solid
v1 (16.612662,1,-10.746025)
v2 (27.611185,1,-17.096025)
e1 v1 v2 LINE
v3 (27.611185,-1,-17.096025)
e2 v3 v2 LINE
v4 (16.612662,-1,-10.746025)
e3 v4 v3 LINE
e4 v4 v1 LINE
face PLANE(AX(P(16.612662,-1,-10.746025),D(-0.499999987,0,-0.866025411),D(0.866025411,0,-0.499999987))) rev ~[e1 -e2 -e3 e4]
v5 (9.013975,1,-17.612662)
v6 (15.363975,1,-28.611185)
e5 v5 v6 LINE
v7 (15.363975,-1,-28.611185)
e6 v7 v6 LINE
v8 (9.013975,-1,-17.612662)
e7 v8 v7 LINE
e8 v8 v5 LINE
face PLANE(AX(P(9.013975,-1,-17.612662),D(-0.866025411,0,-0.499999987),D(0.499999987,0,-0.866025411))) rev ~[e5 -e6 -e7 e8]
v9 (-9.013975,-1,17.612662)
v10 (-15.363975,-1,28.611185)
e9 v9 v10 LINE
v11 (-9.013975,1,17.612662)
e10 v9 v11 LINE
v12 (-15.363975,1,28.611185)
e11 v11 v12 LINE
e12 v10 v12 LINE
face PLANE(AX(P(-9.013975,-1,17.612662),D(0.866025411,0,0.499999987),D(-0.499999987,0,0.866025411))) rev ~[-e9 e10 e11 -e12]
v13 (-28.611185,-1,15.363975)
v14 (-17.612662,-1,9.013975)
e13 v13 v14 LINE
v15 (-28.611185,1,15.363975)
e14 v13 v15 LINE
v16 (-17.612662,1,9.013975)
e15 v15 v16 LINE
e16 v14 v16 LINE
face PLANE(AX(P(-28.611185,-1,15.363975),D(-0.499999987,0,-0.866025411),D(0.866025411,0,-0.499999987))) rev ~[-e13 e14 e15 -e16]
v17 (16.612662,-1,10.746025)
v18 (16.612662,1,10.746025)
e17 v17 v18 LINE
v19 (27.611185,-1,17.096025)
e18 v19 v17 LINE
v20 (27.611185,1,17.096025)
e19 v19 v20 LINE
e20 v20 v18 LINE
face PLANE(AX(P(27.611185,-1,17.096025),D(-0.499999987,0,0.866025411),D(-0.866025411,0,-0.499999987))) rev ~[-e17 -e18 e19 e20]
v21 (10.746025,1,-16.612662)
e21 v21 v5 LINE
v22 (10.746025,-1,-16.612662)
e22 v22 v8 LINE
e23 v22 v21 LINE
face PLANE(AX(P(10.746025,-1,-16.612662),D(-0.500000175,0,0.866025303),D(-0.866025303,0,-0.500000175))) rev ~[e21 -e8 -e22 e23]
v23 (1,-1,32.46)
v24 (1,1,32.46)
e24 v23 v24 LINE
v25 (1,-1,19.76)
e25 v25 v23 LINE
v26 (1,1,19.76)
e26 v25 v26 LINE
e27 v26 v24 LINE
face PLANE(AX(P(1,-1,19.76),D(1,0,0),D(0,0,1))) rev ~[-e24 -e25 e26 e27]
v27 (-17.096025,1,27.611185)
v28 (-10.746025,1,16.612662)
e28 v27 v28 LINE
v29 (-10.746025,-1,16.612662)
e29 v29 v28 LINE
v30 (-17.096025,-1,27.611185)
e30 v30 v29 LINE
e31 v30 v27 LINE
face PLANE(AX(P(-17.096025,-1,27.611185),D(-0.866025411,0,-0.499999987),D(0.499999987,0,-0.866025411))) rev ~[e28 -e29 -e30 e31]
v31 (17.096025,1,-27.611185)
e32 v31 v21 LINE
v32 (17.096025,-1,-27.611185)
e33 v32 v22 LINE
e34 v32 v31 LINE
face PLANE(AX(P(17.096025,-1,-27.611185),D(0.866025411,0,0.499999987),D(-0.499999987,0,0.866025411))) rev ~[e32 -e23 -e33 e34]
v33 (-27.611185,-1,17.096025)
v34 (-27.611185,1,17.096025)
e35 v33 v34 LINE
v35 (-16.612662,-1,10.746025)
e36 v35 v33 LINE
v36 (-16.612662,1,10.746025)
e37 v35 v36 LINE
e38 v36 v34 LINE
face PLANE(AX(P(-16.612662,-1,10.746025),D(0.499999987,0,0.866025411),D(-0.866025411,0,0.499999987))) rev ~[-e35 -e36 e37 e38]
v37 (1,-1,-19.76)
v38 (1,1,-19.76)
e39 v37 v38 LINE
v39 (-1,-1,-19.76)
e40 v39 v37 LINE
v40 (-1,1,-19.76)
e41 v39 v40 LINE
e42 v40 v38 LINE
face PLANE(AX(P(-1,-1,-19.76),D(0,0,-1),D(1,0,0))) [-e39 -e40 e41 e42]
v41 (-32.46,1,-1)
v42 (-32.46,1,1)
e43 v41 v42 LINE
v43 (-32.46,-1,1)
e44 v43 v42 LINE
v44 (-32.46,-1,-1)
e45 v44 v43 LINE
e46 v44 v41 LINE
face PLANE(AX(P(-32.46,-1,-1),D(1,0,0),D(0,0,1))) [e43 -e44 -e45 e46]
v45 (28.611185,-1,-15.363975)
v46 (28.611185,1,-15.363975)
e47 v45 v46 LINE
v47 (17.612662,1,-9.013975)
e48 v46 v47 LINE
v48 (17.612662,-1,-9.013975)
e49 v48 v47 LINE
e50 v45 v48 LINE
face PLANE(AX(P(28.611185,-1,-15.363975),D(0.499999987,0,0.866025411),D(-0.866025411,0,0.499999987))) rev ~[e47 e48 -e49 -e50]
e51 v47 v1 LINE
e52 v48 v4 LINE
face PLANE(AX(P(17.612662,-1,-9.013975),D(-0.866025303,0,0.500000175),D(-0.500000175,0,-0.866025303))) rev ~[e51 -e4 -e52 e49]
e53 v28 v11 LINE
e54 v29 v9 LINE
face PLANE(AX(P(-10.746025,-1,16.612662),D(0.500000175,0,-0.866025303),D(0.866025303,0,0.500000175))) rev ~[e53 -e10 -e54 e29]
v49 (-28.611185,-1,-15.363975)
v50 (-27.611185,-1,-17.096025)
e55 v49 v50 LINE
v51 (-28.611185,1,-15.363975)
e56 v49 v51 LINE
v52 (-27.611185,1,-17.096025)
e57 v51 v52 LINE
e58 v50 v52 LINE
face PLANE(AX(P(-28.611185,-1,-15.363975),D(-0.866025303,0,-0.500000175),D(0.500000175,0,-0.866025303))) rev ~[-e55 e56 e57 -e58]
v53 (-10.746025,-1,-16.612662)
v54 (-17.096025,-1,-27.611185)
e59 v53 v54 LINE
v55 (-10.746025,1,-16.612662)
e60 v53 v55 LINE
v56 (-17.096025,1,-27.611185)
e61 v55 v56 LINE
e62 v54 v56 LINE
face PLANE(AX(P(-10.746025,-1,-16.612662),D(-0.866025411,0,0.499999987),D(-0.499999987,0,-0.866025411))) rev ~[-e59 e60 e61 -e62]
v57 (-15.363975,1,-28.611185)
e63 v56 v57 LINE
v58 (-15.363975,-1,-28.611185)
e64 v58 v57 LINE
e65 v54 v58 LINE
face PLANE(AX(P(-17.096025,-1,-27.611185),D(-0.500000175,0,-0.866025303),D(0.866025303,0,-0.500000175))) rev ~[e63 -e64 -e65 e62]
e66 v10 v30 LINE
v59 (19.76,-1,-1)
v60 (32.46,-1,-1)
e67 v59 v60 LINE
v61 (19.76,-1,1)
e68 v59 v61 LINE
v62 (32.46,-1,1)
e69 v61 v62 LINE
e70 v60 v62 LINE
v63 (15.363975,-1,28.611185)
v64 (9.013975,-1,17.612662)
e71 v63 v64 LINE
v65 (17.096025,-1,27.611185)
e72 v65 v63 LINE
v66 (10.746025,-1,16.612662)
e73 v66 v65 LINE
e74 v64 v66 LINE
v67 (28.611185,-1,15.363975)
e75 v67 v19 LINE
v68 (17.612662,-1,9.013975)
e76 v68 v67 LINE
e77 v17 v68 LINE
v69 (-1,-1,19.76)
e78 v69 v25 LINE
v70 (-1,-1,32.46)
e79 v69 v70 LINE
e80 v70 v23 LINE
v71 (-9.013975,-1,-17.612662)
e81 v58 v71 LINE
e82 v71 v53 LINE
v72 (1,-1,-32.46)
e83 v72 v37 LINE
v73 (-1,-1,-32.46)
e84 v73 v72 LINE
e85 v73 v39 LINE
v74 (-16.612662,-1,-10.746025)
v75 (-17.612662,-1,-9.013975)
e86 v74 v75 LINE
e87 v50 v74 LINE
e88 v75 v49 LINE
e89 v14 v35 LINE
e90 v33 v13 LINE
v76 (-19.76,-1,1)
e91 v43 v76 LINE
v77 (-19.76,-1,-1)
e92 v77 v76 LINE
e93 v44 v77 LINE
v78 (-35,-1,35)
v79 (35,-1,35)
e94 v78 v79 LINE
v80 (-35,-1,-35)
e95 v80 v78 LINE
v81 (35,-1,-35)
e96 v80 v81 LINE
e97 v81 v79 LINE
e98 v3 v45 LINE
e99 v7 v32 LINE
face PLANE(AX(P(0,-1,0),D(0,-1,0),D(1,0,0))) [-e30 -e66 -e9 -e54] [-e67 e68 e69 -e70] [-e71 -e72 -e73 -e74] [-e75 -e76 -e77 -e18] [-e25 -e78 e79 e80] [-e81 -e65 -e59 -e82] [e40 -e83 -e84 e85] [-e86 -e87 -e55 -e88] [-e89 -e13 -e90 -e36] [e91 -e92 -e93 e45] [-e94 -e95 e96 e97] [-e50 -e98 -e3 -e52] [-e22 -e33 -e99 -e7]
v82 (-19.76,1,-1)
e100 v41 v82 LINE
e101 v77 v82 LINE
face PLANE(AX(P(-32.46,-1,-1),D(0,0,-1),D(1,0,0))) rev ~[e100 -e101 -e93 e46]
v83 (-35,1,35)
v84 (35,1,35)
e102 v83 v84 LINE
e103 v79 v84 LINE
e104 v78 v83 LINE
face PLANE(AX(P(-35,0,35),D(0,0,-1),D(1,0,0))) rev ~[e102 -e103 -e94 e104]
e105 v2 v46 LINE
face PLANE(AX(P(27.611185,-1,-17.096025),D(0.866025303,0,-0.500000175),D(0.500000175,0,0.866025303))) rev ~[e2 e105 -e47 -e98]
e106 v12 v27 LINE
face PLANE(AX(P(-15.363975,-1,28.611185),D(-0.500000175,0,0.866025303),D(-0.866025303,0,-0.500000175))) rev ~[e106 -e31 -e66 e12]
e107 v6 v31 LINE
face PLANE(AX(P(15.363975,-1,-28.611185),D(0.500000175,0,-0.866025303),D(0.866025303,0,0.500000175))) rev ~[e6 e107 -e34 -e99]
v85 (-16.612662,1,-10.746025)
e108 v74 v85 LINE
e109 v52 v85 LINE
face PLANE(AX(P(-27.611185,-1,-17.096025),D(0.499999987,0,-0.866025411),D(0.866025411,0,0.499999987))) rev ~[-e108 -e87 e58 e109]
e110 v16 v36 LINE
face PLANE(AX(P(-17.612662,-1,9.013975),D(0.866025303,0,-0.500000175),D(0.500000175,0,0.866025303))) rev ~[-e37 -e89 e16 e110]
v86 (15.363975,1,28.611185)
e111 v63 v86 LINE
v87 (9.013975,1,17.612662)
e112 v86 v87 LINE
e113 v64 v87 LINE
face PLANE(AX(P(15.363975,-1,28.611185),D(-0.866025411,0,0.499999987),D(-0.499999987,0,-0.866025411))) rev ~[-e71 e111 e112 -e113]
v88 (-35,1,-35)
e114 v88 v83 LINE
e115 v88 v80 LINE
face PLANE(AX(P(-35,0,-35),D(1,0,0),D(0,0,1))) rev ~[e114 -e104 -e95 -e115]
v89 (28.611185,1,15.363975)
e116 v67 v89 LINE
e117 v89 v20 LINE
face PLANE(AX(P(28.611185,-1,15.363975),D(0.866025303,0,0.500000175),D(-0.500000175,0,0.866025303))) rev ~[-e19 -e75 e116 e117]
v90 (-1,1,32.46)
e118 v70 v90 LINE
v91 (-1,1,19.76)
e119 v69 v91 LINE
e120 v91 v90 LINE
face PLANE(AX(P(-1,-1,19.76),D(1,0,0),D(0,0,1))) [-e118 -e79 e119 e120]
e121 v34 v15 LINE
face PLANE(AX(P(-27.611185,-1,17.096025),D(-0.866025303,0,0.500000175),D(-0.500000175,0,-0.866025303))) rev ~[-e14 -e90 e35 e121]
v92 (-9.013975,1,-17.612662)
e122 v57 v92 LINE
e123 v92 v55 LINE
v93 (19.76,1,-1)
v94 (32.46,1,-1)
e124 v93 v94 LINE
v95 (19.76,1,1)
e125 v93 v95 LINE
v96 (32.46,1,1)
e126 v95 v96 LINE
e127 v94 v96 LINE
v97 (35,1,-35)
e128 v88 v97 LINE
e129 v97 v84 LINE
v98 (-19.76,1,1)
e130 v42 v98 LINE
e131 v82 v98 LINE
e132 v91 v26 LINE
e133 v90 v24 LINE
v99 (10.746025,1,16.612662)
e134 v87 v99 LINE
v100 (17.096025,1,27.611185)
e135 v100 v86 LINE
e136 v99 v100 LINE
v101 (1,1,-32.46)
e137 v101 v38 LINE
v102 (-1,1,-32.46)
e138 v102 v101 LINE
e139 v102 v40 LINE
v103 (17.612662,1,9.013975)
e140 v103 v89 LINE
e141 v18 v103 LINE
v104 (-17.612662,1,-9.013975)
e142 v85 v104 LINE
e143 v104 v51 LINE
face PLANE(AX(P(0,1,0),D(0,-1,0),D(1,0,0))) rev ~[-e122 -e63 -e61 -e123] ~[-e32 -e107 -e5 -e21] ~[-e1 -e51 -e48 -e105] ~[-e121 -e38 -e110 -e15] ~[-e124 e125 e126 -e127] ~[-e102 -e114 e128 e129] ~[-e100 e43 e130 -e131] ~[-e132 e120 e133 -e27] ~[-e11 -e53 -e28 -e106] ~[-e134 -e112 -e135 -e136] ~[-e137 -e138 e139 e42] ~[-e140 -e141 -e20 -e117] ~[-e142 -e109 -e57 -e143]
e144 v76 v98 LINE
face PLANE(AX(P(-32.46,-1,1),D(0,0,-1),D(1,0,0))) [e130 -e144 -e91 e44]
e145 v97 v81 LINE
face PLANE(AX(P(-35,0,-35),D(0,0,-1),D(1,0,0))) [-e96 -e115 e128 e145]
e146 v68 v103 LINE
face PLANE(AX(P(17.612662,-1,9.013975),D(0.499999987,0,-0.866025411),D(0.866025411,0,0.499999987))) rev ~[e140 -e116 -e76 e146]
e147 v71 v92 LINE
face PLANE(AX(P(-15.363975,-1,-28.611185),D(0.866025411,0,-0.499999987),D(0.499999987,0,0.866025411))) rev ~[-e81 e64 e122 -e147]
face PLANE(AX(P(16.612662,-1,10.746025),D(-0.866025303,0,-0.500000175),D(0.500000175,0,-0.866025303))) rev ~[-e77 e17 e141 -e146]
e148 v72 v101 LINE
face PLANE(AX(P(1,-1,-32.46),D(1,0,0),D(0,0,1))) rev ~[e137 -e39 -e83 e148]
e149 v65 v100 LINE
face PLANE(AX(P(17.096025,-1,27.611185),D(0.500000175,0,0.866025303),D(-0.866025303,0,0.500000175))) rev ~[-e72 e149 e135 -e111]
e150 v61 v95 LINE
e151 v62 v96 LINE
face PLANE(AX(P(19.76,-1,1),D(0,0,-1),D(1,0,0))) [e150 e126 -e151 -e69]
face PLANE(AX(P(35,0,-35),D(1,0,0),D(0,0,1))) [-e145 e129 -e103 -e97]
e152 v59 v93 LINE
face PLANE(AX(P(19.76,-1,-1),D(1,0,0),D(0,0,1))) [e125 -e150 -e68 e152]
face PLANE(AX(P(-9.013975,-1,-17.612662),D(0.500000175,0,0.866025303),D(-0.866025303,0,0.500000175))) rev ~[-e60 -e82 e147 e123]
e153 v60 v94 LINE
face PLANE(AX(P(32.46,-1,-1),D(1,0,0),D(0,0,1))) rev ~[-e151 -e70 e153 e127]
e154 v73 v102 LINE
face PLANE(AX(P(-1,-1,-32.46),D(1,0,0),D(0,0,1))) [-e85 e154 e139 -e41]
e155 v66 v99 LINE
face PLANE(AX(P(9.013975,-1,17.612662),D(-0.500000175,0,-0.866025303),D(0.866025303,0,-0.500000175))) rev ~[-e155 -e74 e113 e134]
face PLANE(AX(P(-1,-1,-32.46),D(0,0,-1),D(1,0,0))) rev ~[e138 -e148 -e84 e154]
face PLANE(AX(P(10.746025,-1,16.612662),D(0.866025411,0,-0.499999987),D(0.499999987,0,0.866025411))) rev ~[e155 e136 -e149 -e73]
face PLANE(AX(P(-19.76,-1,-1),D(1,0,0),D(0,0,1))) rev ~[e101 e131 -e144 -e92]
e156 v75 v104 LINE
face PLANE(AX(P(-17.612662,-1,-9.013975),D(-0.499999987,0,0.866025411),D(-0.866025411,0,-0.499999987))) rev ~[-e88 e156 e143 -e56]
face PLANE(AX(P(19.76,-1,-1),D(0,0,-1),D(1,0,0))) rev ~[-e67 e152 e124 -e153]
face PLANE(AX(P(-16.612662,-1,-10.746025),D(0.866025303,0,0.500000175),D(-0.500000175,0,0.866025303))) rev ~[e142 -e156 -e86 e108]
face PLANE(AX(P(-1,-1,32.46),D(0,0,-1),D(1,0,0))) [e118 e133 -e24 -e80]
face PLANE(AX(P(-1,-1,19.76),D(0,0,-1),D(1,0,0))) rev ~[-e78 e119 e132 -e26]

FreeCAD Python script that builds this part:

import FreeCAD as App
import Part
import Sketcher
from FreeCAD import Vector
Q = App.Units.Quantity

doc = App.newDocument("Part")
body = doc.addObject("PartDesign::Body", "Body")

# Sketch on XZ plane
sketch1 = body.newObject("Sketcher::SketchObject", "Sketch")
sketch1.AttachmentSupport = (doc.getObject("XZ_Plane"), [""])
sketch1.MapMode = "FlatFace"
sketch1.addGeometry([
    Part.LineSegment(Vector(-35, 35, 0), Vector(-35, -35, 0)),
    Part.LineSegment(Vector(-35, -35, 0), Vector(35, -35, 0)),
    Part.LineSegment(Vector(35, -35, 0), Vector(35, 35, 0)),
    Part.LineSegment(Vector(35, 35, 0), Vector(-35, 35, 0)),
], False)
sketch1.addConstraint([
    Sketcher.Constraint("Coincident", 0, 2, 1, 1),
    Sketcher.Constraint("Coincident", 1, 2, 2, 1),
    Sketcher.Constraint("Coincident", 2, 2, 3, 1),
    Sketcher.Constraint("Coincident", 3, 2, 0, 1),
    Sketcher.Constraint("Vertical", 0),
    Sketcher.Constraint("Horizontal", 1),
    Sketcher.Constraint("Vertical", 2),
    Sketcher.Constraint("Horizontal", 3),
    Sketcher.Constraint("Symmetric", 0, 2, 2, 2, -1, 1),
    Sketcher.Constraint("Equal", 3, 0),
    Sketcher.Constraint("DistanceX", 1, 1, 1, 2, 70.0),
])
pad1 = body.newObject("PartDesign::Pad", "Pad")
pad1.Profile = sketch1
pad1.Length = 2
pad1.Midplane = True

# Sketch on XZ plane
sketch2 = body.newObject("Sketcher::SketchObject", "Sketch001")
sketch2.AttachmentSupport = (doc.getObject("XZ_Plane"), [""])
sketch2.MapMode = "FlatFace"
sketch2.AttachmentOffset = App.Placement(Vector(0, 0, 1), App.Rotation())
sketch2.addGeometry([
    Part.LineSegment(Vector(-1, 32.5, 0), Vector(-1, 19.8, 0)),  # 0
    Part.LineSegment(Vector(-1, 19.8, 0), Vector(1, 19.8, 0)),  # 1
    Part.LineSegment(Vector(1, 19.8, 0), Vector(1, 32.5, 0)),  # 2
    Part.LineSegment(Vector(1, 32.5, 0), Vector(-1, 32.5, 0)),  # 3
    Part.LineSegment(Vector(-9, 17.6, 0), Vector(-15.4, 28.6, 0)),  # 4
    Part.LineSegment(Vector(-15.4, 28.6, 0), Vector(-17.1, 27.6, 0)),  # 5
    Part.LineSegment(Vector(-17.1, 27.6, 0), Vector(-10.7, 16.6, 0)),  # 6
    Part.LineSegment(Vector(-10.7, 16.6, 0), Vector(-9, 17.6, 0)),  # 7
    Part.LineSegment(Vector(-16.6, 10.7, 0), Vector(-27.6, 17.1, 0)),  # 8
    Part.LineSegment(Vector(-27.6, 17.1, 0), Vector(-28.6, 15.4, 0)),  # 9
    Part.LineSegment(Vector(-28.6, 15.4, 0), Vector(-17.6, 9, 0)),  # 10
    Part.LineSegment(Vector(-17.6, 9, 0), Vector(-16.6, 10.7, 0)),  # 11
    Part.LineSegment(Vector(-32.5, 1, 0), Vector(-32.5, -1, 0)),  # 12
    Part.LineSegment(Vector(-32.5, -1, 0), Vector(-19.8, -1, 0)),  # 13
    Part.LineSegment(Vector(-19.8, -1, 0), Vector(-19.8, 1, 0)),  # 14
    Part.LineSegment(Vector(-19.8, 1, 0), Vector(-32.5, 1, 0)),  # 15
    Part.LineSegment(Vector(-17.6, -9, 0), Vector(-28.6, -15.4, 0)),  # 16
    Part.LineSegment(Vector(-28.6, -15.4, 0), Vector(-27.6, -17.1, 0)),  # 17
    Part.LineSegment(Vector(-27.6, -17.1, 0), Vector(-16.6, -10.7, 0)),  # 18
    Part.LineSegment(Vector(-16.6, -10.7, 0), Vector(-17.6, -9, 0)),  # 19
    Part.LineSegment(Vector(-10.7, -16.6, 0), Vector(-17.1, -27.6, 0)),  # 20
    Part.LineSegment(Vector(-17.1, -27.6, 0), Vector(-15.4, -28.6, 0)),  # 21
    Part.LineSegment(Vector(-15.4, -28.6, 0), Vector(-9, -17.6, 0)),  # 22
    Part.LineSegment(Vector(-9, -17.6, 0), Vector(-10.7, -16.6, 0)),  # 23
    Part.LineSegment(Vector(-1, -19.8, 0), Vector(-1, -32.5, 0)),  # 24
    Part.LineSegment(Vector(-1, -32.5, 0), Vector(1, -32.5, 0)),  # 25
    Part.LineSegment(Vector(1, -32.5, 0), Vector(1, -19.8, 0)),  # 26
    Part.LineSegment(Vector(1, -19.8, 0), Vector(-1, -19.8, 0)),  # 27
    Part.LineSegment(Vector(9, -17.6, 0), Vector(15.4, -28.6, 0)),  # 28
    Part.LineSegment(Vector(15.4, -28.6, 0), Vector(17.1, -27.6, 0)),  # 29
    Part.LineSegment(Vector(17.1, -27.6, 0), Vector(10.7, -16.6, 0)),  # 30
    Part.LineSegment(Vector(10.7, -16.6, 0), Vector(9, -17.6, 0)),  # 31
    Part.LineSegment(Vector(16.6, -10.7, 0), Vector(27.6, -17.1, 0)),  # 32
    Part.LineSegment(Vector(27.6, -17.1, 0), Vector(28.6, -15.4, 0)),  # 33
    Part.LineSegment(Vector(28.6, -15.4, 0), Vector(17.6, -9, 0)),  # 34
    Part.LineSegment(Vector(17.6, -9, 0), Vector(16.6, -10.7, 0)),  # 35
    Part.LineSegment(Vector(19.8, 1, 0), Vector(19.8, -1, 0)),  # 36
    Part.LineSegment(Vector(19.8, -1, 0), Vector(32.5, -1, 0)),  # 37
    Part.LineSegment(Vector(32.5, -1, 0), Vector(32.5, 1, 0)),  # 38
    Part.LineSegment(Vector(32.5, 1, 0), Vector(19.8, 1, 0)),  # 39
    Part.LineSegment(Vector(17.6, 9, 0), Vector(28.6, 15.4, 0)),  # 40
    Part.LineSegment(Vector(28.6, 15.4, 0), Vector(27.6, 17.1, 0)),  # 41
    Part.LineSegment(Vector(27.6, 17.1, 0), Vector(16.6, 10.7, 0)),  # 42
    Part.LineSegment(Vector(16.6, 10.7, 0), Vector(17.6, 9, 0)),  # 43
    Part.LineSegment(Vector(10.7, 16.6, 0), Vector(17.1, 27.6, 0)),  # 44
    Part.LineSegment(Vector(17.1, 27.6, 0), Vector(15.4, 28.6, 0)),  # 45
    Part.LineSegment(Vector(15.4, 28.6, 0), Vector(9, 17.6, 0)),  # 46
    Part.LineSegment(Vector(9, 17.6, 0), Vector(10.7, 16.6, 0)),  # 47
], False)
sketch2.addConstraint([
    Sketcher.Constraint("Coincident", 0, 2, 1, 1),
    Sketcher.Constraint("Coincident", 1, 2, 2, 1),
    Sketcher.Constraint("Coincident", 2, 2, 3, 1),
    Sketcher.Constraint("Coincident", 3, 2, 0, 1),
    Sketcher.Constraint("Coincident", 4, 2, 5, 1),
    Sketcher.Constraint("Coincident", 5, 2, 6, 1),
    Sketcher.Constraint("Coincident", 6, 2, 7, 1),
    Sketcher.Constraint("Coincident", 7, 2, 4, 1),
    Sketcher.Constraint("Coincident", 8, 2, 9, 1),
    Sketcher.Constraint("Coincident", 9, 2, 10, 1),
    Sketcher.Constraint("Coincident", 10, 2, 11, 1),
    Sketcher.Constraint("Coincident", 11, 2, 8, 1),
    Sketcher.Constraint("Coincident", 12, 2, 13, 1),
    Sketcher.Constraint("Coincident", 13, 2, 14, 1),
    Sketcher.Constraint("Coincident", 14, 2, 15, 1),
    Sketcher.Constraint("Coincident", 15, 2, 12, 1),
    Sketcher.Constraint("Coincident", 16, 2, 17, 1),
    Sketcher.Constraint("Coincident", 17, 2, 18, 1),
    Sketcher.Constraint("Coincident", 18, 2, 19, 1),
    Sketcher.Constraint("Coincident", 19, 2, 16, 1),
    Sketcher.Constraint("Coincident", 20, 2, 21, 1),
    Sketcher.Constraint("Coincident", 21, 2, 22, 1),
    Sketcher.Constraint("Coincident", 22, 2, 23, 1),
    Sketcher.Constraint("Coincident", 23, 2, 20, 1),
    Sketcher.Constraint("Coincident", 24, 2, 25, 1),
    Sketcher.Constraint("Coincident", 25, 2, 26, 1),
    Sketcher.Constraint("Coincident", 26, 2, 27, 1),
    Sketcher.Constraint("Coincident", 27, 2, 24, 1),
    Sketcher.Constraint("Coincident", 28, 2, 29, 1),
    Sketcher.Constraint("Coincident", 29, 2, 30, 1),
    Sketcher.Constraint("Coincident", 30, 2, 31, 1),
    Sketcher.Constraint("Coincident", 31, 2, 28, 1),
    Sketcher.Constraint("Coincident", 32, 2, 33, 1),
    Sketcher.Constraint("Coincident", 33, 2, 34, 1),
    Sketcher.Constraint("Coincident", 34, 2, 35, 1),
    Sketcher.Constraint("Coincident", 35, 2, 32, 1),
    Sketcher.Constraint("Coincident", 36, 2, 37, 1),
    Sketcher.Constraint("Coincident", 37, 2, 38, 1),
    Sketcher.Constraint("Coincident", 38, 2, 39, 1),
    Sketcher.Constraint("Coincident", 39, 2, 36, 1),
    Sketcher.Constraint("Coincident", 40, 2, 41, 1),
    Sketcher.Constraint("Coincident", 41, 2, 42, 1),
    Sketcher.Constraint("Coincident", 42, 2, 43, 1),
    Sketcher.Constraint("Coincident", 43, 2, 40, 1),
    Sketcher.Constraint("Coincident", 44, 2, 45, 1),
    Sketcher.Constraint("Coincident", 45, 2, 46, 1),
    Sketcher.Constraint("Coincident", 46, 2, 47, 1),
    Sketcher.Constraint("Coincident", 47, 2, 44, 1),
    Sketcher.Constraint("Vertical", 0),
    Sketcher.Constraint("Horizontal", 1),
    Sketcher.Constraint("Vertical", 2),
    Sketcher.Constraint("Horizontal", 3),
    Sketcher.Constraint("Vertical", 12),
    Sketcher.Constraint("Horizontal", 13),
    Sketcher.Constraint("Vertical", 14),
    Sketcher.Constraint("Horizontal", 15),
    Sketcher.Constraint("Vertical", 24),
    Sketcher.Constraint("Horizontal", 25),
    Sketcher.Constraint("Vertical", 26),
    Sketcher.Constraint("Horizontal", 27),
    Sketcher.Constraint("Vertical", 36),
    Sketcher.Constraint("Horizontal", 37),
    Sketcher.Constraint("Vertical", 38),
    Sketcher.Constraint("Horizontal", 39),
    Sketcher.Constraint("Symmetric", 2, 2, 24, 2, -1, 1),
    Sketcher.Constraint("Symmetric", 0, 2, 26, 2, -1, 1),
    Sketcher.Constraint("Symmetric", 4, 2, 28, 2, -1, 1),
    Sketcher.Constraint("Symmetric", 5, 2, 29, 2, -1, 1),
    Sketcher.Constraint("Symmetric", 6, 2, 30, 2, -1, 1),
    Sketcher.Constraint("Symmetric", 7, 2, 31, 2, -1, 1),
    Sketcher.Constraint("Symmetric", 8, 2, 32, 2, -1, 1),
    Sketcher.Constraint("Symmetric", 9, 2, 33, 2, -1, 1),
    Sketcher.Constraint("Symmetric", 10, 2, 34, 2, -1, 1),
    Sketcher.Constraint("Symmetric", 11, 2, 35, 2, -1, 1),
    Sketcher.Constraint("Symmetric", 14, 2, 36, 2, -1, 1),
    Sketcher.Constraint("Symmetric", 12, 2, 38, 2, -1, 1),
    Sketcher.Constraint("Symmetric", 16, 2, 40, 2, -1, 1),
    Sketcher.Constraint("Symmetric", 17, 2, 41, 2, -1, 1),
    Sketcher.Constraint("Symmetric", 18, 2, 42, 2, -1, 1),
    Sketcher.Constraint("Symmetric", 19, 2, 43, 2, -1, 1),
    Sketcher.Constraint("Symmetric", 20, 2, 44, 2, -1, 1),
    Sketcher.Constraint("Symmetric", 21, 2, 45, 2, -1, 1),
    Sketcher.Constraint("Symmetric", 22, 2, 46, 2, -1, 1),
    Sketcher.Constraint("Symmetric", 23, 2, 47, 2, -1, 1),
    Sketcher.Constraint("Symmetric", 21, 2, 28, 2, -2),
    Sketcher.Constraint("Symmetric", 20, 2, 29, 2, -2),
    Sketcher.Constraint("Symmetric", 23, 2, 30, 2, -2),
    Sketcher.Constraint("Symmetric", 22, 2, 31, 2, -2),
    Sketcher.Constraint("Symmetric", 17, 2, 32, 2, -2),
    Sketcher.Constraint("Symmetric", 16, 2, 33, 2, -2),
    Sketcher.Constraint("Symmetric", 19, 2, 34, 2, -2),
    Sketcher.Constraint("Symmetric", 18, 2, 35, 2, -2),
    Sketcher.Constraint("Perpendicular", 4, 5),
    Sketcher.Constraint("Perpendicular", 5, 6),
    Sketcher.Constraint("Perpendicular", 6, 7),
    Sketcher.Constraint("Perpendicular", 8, 9),
    Sketcher.Constraint("Perpendicular", 9, 10),
    Sketcher.Constraint("Perpendicular", 10, 11),
    Sketcher.Constraint("Parallel", 7, 16),
    Sketcher.Constraint("Horizontal", 13, 2, 36, 2),
    Sketcher.Constraint("Vertical", 3, 2, 24, 2),
    Sketcher.Constraint("Equal", 39, 0),
    Sketcher.Constraint("Equal", 27, 12),
    Sketcher.Constraint("Equal", 6, 8),
    Sketcher.Constraint("Equal", 7, 9),
    Sketcher.Constraint("DistanceX", 1, 1, 1, 2, 2.0),
    Sketcher.Constraint("Angle", 4, Q("119.999999 deg")),
    Sketcher.Constraint("Distance", 5, 1.999999),
    Sketcher.Constraint("DistanceX", 13, 1, 13, 2, 12.7),
    Sketcher.Constraint("Distance", 4, 12.7),
    Sketcher.Constraint("DistanceY", -1, 1, 0, 2, 19.76),
    Sketcher.Constraint("DistanceX", 12, 2, -1, 1, 32.46),
    Sketcher.Constraint("DistanceY", -1, 1, 6, 2, 16.612662),
    Sketcher.Constraint("DistanceX", 10, 2, -1, 1, 17.612662),
    Sketcher.Constraint("DistanceX", 8, 2, 5, 2, 10.51516),
    Sketcher.Constraint("DistanceY", 8, 2, 5, 2, 10.51516),
])
pocket1 = body.newObject("PartDesign::Pocket", "Pocket")
pocket1.Profile = sketch2
pocket1.Type = "ThroughAll"

doc.recompute()
